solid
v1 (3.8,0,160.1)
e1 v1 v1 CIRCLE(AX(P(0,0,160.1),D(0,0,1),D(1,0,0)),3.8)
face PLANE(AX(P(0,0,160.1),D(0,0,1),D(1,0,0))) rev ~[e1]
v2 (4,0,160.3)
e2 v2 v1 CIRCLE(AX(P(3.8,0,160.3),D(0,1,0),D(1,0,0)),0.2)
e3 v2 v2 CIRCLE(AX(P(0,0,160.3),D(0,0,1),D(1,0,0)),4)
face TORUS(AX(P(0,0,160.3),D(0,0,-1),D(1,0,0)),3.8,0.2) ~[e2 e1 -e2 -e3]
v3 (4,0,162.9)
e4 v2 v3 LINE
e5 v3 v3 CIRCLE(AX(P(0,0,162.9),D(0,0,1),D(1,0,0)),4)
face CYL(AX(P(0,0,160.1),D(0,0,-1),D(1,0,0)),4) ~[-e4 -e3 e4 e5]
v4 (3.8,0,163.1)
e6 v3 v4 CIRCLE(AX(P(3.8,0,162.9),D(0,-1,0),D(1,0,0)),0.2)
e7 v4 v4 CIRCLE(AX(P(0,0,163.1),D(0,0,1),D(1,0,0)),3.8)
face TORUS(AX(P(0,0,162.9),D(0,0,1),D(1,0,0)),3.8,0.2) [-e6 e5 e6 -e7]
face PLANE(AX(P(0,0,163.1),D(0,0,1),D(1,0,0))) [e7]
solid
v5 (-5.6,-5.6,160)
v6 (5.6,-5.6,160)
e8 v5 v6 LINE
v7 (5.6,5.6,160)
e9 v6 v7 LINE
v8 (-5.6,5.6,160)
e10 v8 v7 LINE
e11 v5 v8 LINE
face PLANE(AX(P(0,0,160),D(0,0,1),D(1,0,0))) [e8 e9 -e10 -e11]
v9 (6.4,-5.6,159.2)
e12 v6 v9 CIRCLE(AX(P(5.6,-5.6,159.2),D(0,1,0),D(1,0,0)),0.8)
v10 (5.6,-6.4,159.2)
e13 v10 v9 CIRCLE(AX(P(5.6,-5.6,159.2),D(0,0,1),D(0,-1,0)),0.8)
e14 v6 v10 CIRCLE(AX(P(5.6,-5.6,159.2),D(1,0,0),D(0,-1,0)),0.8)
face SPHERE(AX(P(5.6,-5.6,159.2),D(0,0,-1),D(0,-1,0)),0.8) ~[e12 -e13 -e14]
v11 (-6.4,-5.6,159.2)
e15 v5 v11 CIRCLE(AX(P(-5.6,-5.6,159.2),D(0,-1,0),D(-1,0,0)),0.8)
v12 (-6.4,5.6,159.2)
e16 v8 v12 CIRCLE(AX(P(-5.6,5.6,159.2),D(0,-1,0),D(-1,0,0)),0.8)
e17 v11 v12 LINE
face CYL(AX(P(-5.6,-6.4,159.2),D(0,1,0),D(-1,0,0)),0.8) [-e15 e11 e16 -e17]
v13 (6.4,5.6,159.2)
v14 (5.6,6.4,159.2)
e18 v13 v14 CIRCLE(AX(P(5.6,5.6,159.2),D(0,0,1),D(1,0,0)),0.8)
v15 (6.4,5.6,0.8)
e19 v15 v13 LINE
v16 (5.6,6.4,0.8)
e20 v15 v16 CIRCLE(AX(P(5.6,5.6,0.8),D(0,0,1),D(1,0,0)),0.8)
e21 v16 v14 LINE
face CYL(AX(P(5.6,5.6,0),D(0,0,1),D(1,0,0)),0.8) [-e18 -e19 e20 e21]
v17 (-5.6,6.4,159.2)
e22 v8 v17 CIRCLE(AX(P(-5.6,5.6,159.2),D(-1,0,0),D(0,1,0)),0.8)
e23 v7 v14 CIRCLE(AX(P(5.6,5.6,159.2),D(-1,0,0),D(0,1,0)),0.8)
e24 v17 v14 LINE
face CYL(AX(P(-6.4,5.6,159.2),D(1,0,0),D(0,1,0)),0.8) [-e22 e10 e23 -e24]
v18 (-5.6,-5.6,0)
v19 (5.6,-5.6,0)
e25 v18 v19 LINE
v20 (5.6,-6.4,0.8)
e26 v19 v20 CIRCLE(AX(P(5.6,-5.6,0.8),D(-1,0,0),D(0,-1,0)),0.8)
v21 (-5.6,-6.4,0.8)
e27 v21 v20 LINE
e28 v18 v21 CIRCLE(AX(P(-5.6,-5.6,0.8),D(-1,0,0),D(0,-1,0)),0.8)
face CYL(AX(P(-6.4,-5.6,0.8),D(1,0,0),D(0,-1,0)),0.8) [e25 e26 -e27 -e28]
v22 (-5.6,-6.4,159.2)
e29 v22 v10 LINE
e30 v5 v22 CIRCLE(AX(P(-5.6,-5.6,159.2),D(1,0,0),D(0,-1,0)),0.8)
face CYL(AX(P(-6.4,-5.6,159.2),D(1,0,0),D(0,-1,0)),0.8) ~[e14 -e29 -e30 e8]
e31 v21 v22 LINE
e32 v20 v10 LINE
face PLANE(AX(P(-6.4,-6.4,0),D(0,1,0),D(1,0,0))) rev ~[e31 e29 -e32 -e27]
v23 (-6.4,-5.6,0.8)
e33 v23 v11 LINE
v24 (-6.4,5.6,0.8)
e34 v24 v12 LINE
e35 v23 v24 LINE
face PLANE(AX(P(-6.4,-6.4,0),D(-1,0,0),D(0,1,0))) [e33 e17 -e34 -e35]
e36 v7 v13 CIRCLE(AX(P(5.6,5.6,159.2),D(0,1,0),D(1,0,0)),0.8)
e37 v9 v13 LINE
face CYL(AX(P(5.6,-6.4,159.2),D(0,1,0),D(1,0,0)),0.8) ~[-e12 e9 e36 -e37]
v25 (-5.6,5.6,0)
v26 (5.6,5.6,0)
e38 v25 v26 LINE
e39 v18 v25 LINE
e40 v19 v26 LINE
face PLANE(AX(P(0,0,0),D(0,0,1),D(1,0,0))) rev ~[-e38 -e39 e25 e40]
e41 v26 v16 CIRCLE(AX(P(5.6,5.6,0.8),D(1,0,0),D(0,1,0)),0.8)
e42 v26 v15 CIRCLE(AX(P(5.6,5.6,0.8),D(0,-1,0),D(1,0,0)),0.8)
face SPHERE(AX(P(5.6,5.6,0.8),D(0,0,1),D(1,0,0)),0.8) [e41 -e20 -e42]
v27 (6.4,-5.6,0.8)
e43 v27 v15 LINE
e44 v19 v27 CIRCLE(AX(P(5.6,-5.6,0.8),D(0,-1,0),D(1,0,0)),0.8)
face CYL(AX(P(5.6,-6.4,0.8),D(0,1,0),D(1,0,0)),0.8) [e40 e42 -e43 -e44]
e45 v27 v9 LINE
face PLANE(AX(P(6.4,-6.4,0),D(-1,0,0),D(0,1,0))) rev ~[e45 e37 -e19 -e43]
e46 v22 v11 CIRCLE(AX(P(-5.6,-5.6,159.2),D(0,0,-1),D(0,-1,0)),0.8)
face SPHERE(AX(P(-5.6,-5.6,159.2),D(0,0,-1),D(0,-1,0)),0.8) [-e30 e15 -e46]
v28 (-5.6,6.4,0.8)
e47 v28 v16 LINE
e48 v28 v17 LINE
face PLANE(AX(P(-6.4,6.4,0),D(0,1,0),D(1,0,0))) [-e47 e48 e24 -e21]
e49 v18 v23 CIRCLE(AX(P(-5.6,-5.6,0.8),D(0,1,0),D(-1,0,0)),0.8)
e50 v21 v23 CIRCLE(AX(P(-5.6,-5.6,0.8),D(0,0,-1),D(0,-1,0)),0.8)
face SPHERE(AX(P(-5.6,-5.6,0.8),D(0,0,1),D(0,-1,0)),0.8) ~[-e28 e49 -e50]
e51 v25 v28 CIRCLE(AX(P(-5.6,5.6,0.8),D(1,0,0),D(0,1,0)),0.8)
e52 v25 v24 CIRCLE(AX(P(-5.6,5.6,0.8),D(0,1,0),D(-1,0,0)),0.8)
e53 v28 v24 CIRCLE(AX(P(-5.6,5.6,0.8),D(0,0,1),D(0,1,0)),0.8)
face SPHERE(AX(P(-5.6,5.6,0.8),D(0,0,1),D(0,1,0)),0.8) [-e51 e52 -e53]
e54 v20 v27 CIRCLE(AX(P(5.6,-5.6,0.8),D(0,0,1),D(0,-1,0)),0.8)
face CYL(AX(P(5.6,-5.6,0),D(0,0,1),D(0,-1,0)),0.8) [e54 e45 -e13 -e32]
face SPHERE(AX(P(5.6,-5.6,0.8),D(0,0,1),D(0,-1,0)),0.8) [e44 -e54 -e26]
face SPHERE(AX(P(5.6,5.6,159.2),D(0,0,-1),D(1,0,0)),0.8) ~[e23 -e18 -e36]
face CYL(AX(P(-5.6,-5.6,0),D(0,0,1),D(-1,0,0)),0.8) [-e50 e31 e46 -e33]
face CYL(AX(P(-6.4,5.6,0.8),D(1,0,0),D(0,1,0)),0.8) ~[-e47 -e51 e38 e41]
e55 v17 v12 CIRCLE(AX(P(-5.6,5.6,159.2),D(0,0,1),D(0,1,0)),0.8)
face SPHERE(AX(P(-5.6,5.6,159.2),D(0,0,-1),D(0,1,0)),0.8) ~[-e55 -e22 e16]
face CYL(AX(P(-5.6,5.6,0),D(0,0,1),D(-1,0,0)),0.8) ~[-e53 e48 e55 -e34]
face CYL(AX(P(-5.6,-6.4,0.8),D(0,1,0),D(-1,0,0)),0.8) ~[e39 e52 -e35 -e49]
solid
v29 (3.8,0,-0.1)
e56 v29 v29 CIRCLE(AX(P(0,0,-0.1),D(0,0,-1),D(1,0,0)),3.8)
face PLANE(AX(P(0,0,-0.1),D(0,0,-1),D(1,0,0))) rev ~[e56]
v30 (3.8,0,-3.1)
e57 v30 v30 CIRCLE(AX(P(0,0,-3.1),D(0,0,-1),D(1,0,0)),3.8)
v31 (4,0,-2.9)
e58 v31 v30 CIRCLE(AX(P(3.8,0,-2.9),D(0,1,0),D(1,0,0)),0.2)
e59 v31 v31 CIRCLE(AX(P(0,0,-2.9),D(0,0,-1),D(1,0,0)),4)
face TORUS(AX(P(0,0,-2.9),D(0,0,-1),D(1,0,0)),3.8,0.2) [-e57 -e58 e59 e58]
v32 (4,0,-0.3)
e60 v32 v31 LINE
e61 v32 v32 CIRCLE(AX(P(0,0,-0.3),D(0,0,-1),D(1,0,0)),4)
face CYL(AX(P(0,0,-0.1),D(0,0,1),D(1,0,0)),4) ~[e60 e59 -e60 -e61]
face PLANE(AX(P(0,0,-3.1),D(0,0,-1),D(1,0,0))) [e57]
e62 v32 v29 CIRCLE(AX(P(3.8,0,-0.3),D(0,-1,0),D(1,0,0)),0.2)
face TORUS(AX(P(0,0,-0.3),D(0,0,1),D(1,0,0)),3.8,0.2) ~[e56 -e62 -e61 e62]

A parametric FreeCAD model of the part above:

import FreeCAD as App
import Part
import Sketcher

V = App.Vector
Q = App.Units.Quantity


def edges_at(feature, points):
    """Names of the edges that pass closest to the given points."""
    edges = feature.Shape.Edges
    near = lambda p: min(range(len(edges)), key=lambda i: edges[i].distToShape(Part.Vertex(*p))[0])
    return sorted({f"Edge{near(p) + 1}" for p in points})

doc = App.newDocument("Part")
body = doc.addObject("PartDesign::Body", "Body")

sketch1 = body.newObject("Sketcher::SketchObject", "Sketch")
sketch1.AttachmentSupport = (doc.getObject("XY_Plane"), [""])
sketch1.MapMode = "FlatFace"
sketch1.addGeometry(Part.LineSegment(V(-6.4, 6.4, 0), V(-6.4, -6.4, 0)), False)
sketch1.addGeometry(Part.LineSegment(V(-6.4, -6.4, 0), V(6.4, -6.4, 0)), False)
sketch1.addGeometry(Part.LineSegment(V(6.4, -6.4, 0), V(6.4, 6.4, 0)), False)
sketch1.addGeometry(Part.LineSegment(V(6.4, 6.4, 0), V(-6.4, 6.4, 0)), False)
sketch1.addConstraint(Sketcher.Constraint("Coincident", 0, 2, 1, 1))
sketch1.addConstraint(Sketcher.Constraint("Coincident", 1, 2, 2, 1))
sketch1.addConstraint(Sketcher.Constraint("Coincident", 2, 2, 3, 1))
sketch1.addConstraint(Sketcher.Constraint("Coincident", 3, 2, 0, 1))
sketch1.addConstraint(Sketcher.Constraint("Vertical", 0))
sketch1.addConstraint(Sketcher.Constraint("Horizontal", 1))
sketch1.addConstraint(Sketcher.Constraint("Vertical", 2))
sketch1.addConstraint(Sketcher.Constraint("Horizontal", 3))
sketch1.addConstraint(Sketcher.Constraint("Symmetric", 0, 2, 2, 2, -1, 1))
sketch1.addConstraint(Sketcher.Constraint("Equal", 3, 0))
sketch1.addConstraint(Sketcher.Constraint("DistanceX", 1, 1, 1, 2, Q("12.8 mm")))
pad1 = body.newObject("PartDesign::Pad", "Pad")
pad1.Profile = sketch1
pad1.Length = 160
doc.recompute()

fillet = body.newObject("PartDesign::Fillet", "Fillet")
fillet.Base = (pad1, ["Edge1"])
fillet.UseAllEdges = True
fillet.Radius = 0.8
body2 = doc.addObject("PartDesign::Body", "Body001")

sketch2 = body2.newObject("Sketcher::SketchObject", "Sketch001")
sketch2.AttachmentSupport = (doc.getObject("XY_Plane001"), [""])
sketch2.MapMode = "FlatFace"
sketch2.AttachmentOffset = App.Placement(V(0, 0, -0.1), App.Rotation())
sketch2.addGeometry(Part.Circle(V(0, 0, 0), V(0, 0, 1), 4), False)
sketch2.addConstraint(Sketcher.Constraint("Coincident", 0, 3, -1, 1))
sketch2.addConstraint(Sketcher.Constraint("Diameter", 0, Q("8 mm")))
pad2 = body2.newObject("PartDesign::Pad", "Pad001")
pad2.Profile = sketch2
pad2.Length = 3
pad2.Reversed = True
doc.recompute()

fillet2 = body2.newObject("PartDesign::Fillet", "Fillet001")
fillet2.Base = (pad2, edges_at(pad2, [(-4, 0, -3.1), (-4, 0, -0.1)]))
fillet2.Radius = 0.2
body3 = doc.addObject("PartDesign::Body", "Body002")

sketch3 = body3.newObject("Sketcher::SketchObject", "Sketch002")
sketch3.AttachmentSupport = (doc.getObject("XY_Plane002"), [""])
sketch3.MapMode = "FlatFace"
sketch3.AttachmentOffset = App.Placement(V(0, 0, 160.1), App.Rotation())
sketch3.addGeometry(Part.Circle(V(0, 0, 0), V(0, 0, 1), 4), False)
sketch3.addConstraint(Sketcher.Constraint("Coincident", 0, 3, -1, 1))
sketch3.addConstraint(Sketcher.Constraint("Diameter", 0, Q("8 mm")))
pad3 = body3.newObject("PartDesign::Pad", "Pad002")
pad3.Profile = sketch3
pad3.Length = 3
doc.recompute()

fillet3 = body3.newObject("PartDesign::Fillet", "Fillet002")
fillet3.Base = (pad3, edges_at(pad3, [(-4, 0, 163.1), (-4, 0, 160.1)]))
fillet3.Radius = 0.2

doc.recompute()
